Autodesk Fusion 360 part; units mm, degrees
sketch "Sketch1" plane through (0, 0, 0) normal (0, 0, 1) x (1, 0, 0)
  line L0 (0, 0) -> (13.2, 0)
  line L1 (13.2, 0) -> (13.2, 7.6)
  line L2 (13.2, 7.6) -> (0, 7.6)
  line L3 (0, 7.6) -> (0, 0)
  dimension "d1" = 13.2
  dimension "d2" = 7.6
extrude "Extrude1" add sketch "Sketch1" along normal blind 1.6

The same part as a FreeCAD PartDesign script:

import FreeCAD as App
import Part
import Sketcher
from FreeCAD import Vector
Q = App.Units.Quantity

doc = App.newDocument("Part")
body = doc.addObject("PartDesign::Body", "Body")

sketch1 = body.newObject("Sketcher::SketchObject", "Sketch")
sketch1.AttachmentSupport = (doc.getObject("XY_Plane"), [""])
sketch1.MapMode = "FlatFace"
sketch1.addGeometry(Part.LineSegment(Vector(0, 7.6, 0), Vector(0, 0, 0)), False)
sketch1.addGeometry(Part.LineSegment(Vector(0, 0, 0), Vector(13.2, 0, 0)), False)
sketch1.addGeometry(Part.LineSegment(Vector(13.2, 0, 0), Vector(13.2, 7.6, 0)), False)
sketch1.addGeometry(Part.LineSegment(Vector(13.2, 7.6, 0), Vector(0, 7.6, 0)), False)
sketch1.addConstraint(Sketcher.Constraint("Coincident", 0, 2, 1, 1))
sketch1.addConstraint(Sketcher.Constraint("Coincident", 1, 2, 2, 1))
sketch1.addConstraint(Sketcher.Constraint("Coincident", 2, 2, 3, 1))
sketch1.addConstraint(Sketcher.Constraint("Coincident", 3, 2, 0, 1))
sketch1.addConstraint(Sketcher.Constraint("Vertical", 0))
sketch1.addConstraint(Sketcher.Constraint("Horizontal", 1))
sketch1.addConstraint(Sketcher.Constraint("Vertical", 2))
sketch1.addConstraint(Sketcher.Constraint("Horizontal", 3))
sketch1.addConstraint(Sketcher.Constraint("Coincident", 0, 2, -1, 1))
sketch1.addConstraint(Sketcher.Constraint("DistanceX", 1, 1, 1, 2, Q("13.2 mm")))
sketch1.addConstraint(Sketcher.Constraint("DistanceY", 0, 2, 0, 1, Q("7.6 mm")))
pad1 = body.newObject("PartDesign::Pad", "Pad")
pad1.Profile = sketch1
pad1.Length = 1.6

doc.recompute()
